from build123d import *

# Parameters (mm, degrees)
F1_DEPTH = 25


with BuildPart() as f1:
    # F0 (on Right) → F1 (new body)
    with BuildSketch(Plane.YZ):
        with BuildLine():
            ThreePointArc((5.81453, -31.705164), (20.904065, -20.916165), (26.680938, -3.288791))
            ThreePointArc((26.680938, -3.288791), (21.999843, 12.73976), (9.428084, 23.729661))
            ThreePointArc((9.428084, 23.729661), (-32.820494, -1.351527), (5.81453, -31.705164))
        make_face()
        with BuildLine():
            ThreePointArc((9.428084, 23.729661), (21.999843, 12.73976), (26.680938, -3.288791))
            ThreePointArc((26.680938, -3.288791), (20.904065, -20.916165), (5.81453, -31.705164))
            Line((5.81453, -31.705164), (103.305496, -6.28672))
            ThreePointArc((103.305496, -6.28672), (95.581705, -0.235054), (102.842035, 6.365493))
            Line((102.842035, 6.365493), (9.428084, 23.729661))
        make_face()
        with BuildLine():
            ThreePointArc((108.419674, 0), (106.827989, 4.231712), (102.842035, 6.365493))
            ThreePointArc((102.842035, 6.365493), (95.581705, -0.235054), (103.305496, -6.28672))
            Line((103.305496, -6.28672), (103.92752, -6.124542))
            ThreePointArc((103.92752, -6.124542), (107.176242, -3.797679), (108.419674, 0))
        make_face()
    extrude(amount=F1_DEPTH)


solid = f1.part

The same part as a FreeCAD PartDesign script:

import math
import FreeCAD as App
import Part
import Sketcher
from FreeCAD import Vector

doc = App.newDocument("Part")
params = doc.addObject("Spreadsheet::Sheet", "Params")
for row, (alias, value) in enumerate([
    ("pad1_length", "25 mm"),
], start=1):
    params.set(f"A{row}", alias)
    params.set(f"B{row}", "=" + value)
    params.setAlias(f"B{row}", alias)

body = doc.addObject("PartDesign::Body", "Body")

# Sketch on YZ plane
sketch1 = body.newObject("Sketcher::SketchObject", "Sketch")
sketch1.AttachmentSupport = (doc.getObject("YZ_Plane"), [""])
sketch1.MapMode = "FlatFace"
sketch1.addGeometry(Part.ArcOfCircle(Part.Circle(Vector(-3.101315, -3.288791, 0), Vector(0, 0, 1), 29.782253), math.radians(65.121199), math.radians(287.419631)), False)
sketch1.addGeometry(Part.LineSegment(Vector(5.81453, -31.705164, 0), Vector(103.305496, -6.28672, 0)), False)
sketch1.addGeometry(Part.LineSegment(Vector(103.305496, -6.28672, 0), Vector(103.92752, -6.124542, 0)), False)
sketch1.addGeometry(Part.ArcOfCircle(Part.Circle(Vector(101.998537, 0.000001, 0), Vector(0, 0, 1), 6.421137), math.radians(-72.517685), math.radians(-0.000006)), False)
sketch1.addGeometry(Part.ArcOfCircle(Part.Circle(Vector(101.998537, -0.000001, 0), Vector(0, 0, 1), 6.421137), math.radians(0.000008), math.radians(82.451654)), False)
sketch1.addGeometry(Part.LineSegment(Vector(102.842035, 6.365493, 0), Vector(9.428084, 23.729661, 0)), False)
sketch1.addConstraint(Sketcher.Constraint("Coincident", 0, 2, 1, 1))
sketch1.addConstraint(Sketcher.Constraint("Coincident", 1, 2, 2, 1))
sketch1.addConstraint(Sketcher.Constraint("Coincident", 2, 2, 3, 1))
sketch1.addConstraint(Sketcher.Constraint("Coincident", 3, 2, 4, 1))
sketch1.addConstraint(Sketcher.Constraint("Coincident", 4, 2, 5, 1))
sketch1.addConstraint(Sketcher.Constraint("Coincident", 5, 2, 0, 1))
sketch1.addConstraint(Sketcher.Constraint("Coincident", 4, 3, 3, 3))
sketch1.addConstraint(Sketcher.Constraint("PointOnObject", 3, 3, -1))
sketch1.addConstraint(Sketcher.Constraint("PointOnObject", 3, 2, -1))
sketch1.addConstraint(Sketcher.Constraint("Radius", 0, 29.782253))
sketch1.addConstraint(Sketcher.Constraint("Radius", 3, 6.421137))
sketch1.addConstraint(Sketcher.Constraint("DistanceX", 4, 3, 4, 2, 0.843498))
sketch1.addConstraint(Sketcher.Constraint("DistanceX", 0, 3, 5, 2, 12.529399))
sketch1.addConstraint(Sketcher.Constraint("Distance", 2, 0.642818))
sketch1.addConstraint(Sketcher.Constraint("DistanceY", 0, 3, -1, 1, 3.288791))
sketch1.addConstraint(Sketcher.Constraint("DistanceX", -1, 1, 0, 2, 5.81453))
sketch1.addConstraint(Sketcher.Constraint("DistanceY", 1, 2, -1, 1, 6.28672))
sketch1.addConstraint(Sketcher.Constraint("DistanceX", -1, 1, 2, 2, 103.92752))
sketch1.addConstraint(Sketcher.Constraint("DistanceX", 4, 3, 1, 2, 1.306959))
sketch1.addConstraint(Sketcher.Constraint("DistanceX", 0, 3, 1, 2, 106.406811))
pad1 = body.newObject("PartDesign::Pad", "Pad")
pad1.Profile = sketch1
pad1.setExpression("Length", "Params.pad1_length")

doc.recompute()
